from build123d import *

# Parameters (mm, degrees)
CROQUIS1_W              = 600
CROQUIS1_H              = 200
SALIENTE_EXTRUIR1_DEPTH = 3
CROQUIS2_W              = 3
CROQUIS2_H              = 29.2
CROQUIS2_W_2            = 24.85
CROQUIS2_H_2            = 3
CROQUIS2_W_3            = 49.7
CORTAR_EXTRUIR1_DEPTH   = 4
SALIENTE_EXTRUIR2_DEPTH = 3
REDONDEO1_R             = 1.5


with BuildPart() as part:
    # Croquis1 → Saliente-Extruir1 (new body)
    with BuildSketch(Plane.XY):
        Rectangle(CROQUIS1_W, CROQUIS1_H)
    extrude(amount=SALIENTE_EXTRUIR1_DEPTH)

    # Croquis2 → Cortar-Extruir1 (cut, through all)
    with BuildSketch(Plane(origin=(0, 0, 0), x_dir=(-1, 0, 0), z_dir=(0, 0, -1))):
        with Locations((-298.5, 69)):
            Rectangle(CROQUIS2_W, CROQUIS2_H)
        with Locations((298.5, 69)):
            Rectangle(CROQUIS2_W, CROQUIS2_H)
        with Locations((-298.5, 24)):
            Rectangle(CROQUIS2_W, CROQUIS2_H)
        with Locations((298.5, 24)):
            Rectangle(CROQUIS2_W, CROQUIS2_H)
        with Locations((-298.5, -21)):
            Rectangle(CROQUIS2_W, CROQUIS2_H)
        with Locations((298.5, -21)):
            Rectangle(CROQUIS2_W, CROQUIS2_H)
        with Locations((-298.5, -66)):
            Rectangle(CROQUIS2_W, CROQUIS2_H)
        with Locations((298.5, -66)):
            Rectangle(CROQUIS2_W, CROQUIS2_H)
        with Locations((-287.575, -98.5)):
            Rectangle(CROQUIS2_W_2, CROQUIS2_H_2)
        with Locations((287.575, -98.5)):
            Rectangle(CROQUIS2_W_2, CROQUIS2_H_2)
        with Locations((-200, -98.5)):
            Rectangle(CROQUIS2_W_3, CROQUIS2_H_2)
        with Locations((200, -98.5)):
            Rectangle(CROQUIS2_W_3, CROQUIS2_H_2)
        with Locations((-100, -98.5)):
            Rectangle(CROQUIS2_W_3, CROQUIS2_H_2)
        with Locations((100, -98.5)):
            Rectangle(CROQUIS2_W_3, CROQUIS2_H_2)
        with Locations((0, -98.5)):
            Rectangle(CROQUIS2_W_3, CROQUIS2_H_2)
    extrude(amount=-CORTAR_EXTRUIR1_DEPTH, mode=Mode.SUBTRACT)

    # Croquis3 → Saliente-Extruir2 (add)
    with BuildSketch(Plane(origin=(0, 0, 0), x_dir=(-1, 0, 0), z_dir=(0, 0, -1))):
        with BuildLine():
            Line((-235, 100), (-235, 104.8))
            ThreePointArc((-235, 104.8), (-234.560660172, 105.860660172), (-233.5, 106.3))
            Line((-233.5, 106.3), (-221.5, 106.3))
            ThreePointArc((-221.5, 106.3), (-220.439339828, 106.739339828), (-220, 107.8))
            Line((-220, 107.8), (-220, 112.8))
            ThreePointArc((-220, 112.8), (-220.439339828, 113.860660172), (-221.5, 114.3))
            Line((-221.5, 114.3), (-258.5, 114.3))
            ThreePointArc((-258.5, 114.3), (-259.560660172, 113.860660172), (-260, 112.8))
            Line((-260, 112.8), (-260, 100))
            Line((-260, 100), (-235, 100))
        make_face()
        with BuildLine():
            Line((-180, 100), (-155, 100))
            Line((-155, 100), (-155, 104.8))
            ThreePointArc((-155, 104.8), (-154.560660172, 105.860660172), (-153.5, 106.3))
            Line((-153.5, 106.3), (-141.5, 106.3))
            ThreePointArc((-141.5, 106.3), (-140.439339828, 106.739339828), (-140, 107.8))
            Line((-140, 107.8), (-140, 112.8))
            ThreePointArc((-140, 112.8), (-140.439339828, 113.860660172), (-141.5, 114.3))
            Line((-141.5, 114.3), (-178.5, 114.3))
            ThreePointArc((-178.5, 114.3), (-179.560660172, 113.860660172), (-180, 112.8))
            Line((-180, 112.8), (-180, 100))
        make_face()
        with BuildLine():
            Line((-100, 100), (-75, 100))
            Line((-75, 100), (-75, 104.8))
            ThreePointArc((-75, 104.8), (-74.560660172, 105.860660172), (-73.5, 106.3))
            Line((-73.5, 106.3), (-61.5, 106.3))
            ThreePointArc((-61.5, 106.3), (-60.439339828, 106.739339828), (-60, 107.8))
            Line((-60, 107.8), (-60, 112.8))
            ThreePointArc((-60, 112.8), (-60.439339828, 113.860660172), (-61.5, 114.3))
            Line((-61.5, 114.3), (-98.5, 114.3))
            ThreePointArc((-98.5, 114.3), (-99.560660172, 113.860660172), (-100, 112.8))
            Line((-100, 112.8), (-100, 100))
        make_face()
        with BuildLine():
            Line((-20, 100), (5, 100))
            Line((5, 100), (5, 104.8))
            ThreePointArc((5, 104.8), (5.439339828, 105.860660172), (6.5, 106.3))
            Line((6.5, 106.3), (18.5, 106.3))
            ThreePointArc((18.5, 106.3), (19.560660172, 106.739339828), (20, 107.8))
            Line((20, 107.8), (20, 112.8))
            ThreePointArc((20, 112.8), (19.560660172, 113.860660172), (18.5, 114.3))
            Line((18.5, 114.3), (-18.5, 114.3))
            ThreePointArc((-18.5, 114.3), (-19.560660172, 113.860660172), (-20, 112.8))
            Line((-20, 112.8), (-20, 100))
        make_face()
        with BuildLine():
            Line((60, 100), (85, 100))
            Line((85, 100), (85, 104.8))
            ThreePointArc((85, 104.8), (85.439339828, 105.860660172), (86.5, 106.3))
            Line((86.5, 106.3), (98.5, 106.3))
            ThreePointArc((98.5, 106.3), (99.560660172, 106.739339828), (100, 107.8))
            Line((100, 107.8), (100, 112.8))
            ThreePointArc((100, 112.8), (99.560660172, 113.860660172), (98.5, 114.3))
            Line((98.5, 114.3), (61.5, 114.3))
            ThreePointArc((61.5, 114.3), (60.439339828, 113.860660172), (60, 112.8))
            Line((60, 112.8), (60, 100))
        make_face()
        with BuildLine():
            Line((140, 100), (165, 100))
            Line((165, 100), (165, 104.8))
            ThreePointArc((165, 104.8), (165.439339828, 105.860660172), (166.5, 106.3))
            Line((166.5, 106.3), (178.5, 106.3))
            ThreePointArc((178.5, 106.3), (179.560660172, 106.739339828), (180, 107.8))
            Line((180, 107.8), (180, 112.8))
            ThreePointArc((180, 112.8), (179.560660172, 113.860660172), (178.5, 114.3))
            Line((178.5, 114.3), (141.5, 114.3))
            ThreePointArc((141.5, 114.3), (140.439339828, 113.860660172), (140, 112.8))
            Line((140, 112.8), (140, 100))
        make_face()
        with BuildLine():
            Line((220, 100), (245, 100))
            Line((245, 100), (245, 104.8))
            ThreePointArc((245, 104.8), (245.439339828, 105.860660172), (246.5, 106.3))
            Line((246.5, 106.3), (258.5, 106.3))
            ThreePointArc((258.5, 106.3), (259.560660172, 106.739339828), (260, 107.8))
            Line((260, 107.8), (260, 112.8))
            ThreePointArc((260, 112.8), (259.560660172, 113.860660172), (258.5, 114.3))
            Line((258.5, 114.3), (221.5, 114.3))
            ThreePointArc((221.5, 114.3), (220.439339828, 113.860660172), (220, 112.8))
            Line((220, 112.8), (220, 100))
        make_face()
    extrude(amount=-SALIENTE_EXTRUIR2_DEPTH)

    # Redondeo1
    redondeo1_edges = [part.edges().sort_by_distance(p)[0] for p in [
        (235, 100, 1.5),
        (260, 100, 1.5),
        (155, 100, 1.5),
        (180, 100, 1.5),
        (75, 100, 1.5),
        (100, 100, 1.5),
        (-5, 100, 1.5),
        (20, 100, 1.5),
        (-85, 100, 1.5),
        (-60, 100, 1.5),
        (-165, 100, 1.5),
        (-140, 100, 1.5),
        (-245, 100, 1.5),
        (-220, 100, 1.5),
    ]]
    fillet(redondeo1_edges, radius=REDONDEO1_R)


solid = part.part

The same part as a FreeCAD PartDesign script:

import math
import FreeCAD as App
import Part
import Sketcher


def edges_at(feature, points):
    """Names of the edges that pass closest to the given points."""
    edges = feature.Shape.Edges
    near = lambda p: min(range(len(edges)), key=lambda i: edges[i].distToShape(Part.Vertex(*p))[0])
    return sorted({f"Edge{near(p) + 1}" for p in points})

doc = App.newDocument("Part")
body = doc.addObject("PartDesign::Body", "Body")

# Sketch on XY plane
sketch1 = body.newObject("Sketcher::SketchObject", "Sketch")
sketch1.AttachmentSupport = (doc.getObject("XY_Plane"), [""])
sketch1.MapMode = "FlatFace"
sketch1.addGeometry([
    Part.LineSegment(App.Vector(-300, 100, 0), App.Vector(-300, -100, 0)),
    Part.LineSegment(App.Vector(-300, -100, 0), App.Vector(300, -100, 0)),
    Part.LineSegment(App.Vector(300, -100, 0), App.Vector(300, 100, 0)),
    Part.LineSegment(App.Vector(300, 100, 0), App.Vector(-300, 100, 0)),
], False)
sketch1.addConstraint([
    Sketcher.Constraint("Coincident", 0, 2, 1, 1),
    Sketcher.Constraint("Coincident", 1, 2, 2, 1),
    Sketcher.Constraint("Coincident", 2, 2, 3, 1),
    Sketcher.Constraint("Coincident", 3, 2, 0, 1),
    Sketcher.Constraint("Vertical", 0),
    Sketcher.Constraint("Horizontal", 1),
    Sketcher.Constraint("Vertical", 2),
    Sketcher.Constraint("Horizontal", 3),
    Sketcher.Constraint("Symmetric", 0, 2, 2, 2, -1, 1),
    Sketcher.Constraint("DistanceX", 1, 1, 1, 2, 600.0),
    Sketcher.Constraint("DistanceY", 0, 2, 0, 1, 200.0),
])
pad1 = body.newObject("PartDesign::Pad", "Pad")
pad1.Profile = sketch1
pad1.Length = 3

# Sketch on XY plane
sketch2 = body.newObject("Sketcher::SketchObject", "Sketch001")
sketch2.AttachmentSupport = (doc.getObject("XY_Plane"), [""])
sketch2.MapMode = "FlatFace"
sketch2.addGeometry([
    Part.LineSegment(App.Vector(300, 83.6, 0), App.Vector(300, 54.4, 0)),  # 0
    Part.LineSegment(App.Vector(300, 54.4, 0), App.Vector(297, 54.4, 0)),  # 1
    Part.LineSegment(App.Vector(297, 54.4, 0), App.Vector(297, 83.6, 0)),  # 2
    Part.LineSegment(App.Vector(297, 83.6, 0), App.Vector(300, 83.6, 0)),  # 3
    Part.LineSegment(App.Vector(-297, 83.6, 0), App.Vector(-297, 54.4, 0)),  # 4
    Part.LineSegment(App.Vector(-297, 54.4, 0), App.Vector(-300, 54.4, 0)),  # 5
    Part.LineSegment(App.Vector(-300, 54.4, 0), App.Vector(-300, 83.6, 0)),  # 6
    Part.LineSegment(App.Vector(-300, 83.6, 0), App.Vector(-297, 83.6, 0)),  # 7
    Part.LineSegment(App.Vector(300, 38.6, 0), App.Vector(300, 9.4, 0)),  # 8
    Part.LineSegment(App.Vector(300, 9.4, 0), App.Vector(297, 9.4, 0)),  # 9
    Part.LineSegment(App.Vector(297, 9.4, 0), App.Vector(297, 38.6, 0)),  # 10
    Part.LineSegment(App.Vector(297, 38.6, 0), App.Vector(300, 38.6, 0)),  # 11
    Part.LineSegment(App.Vector(-297, 38.6, 0), App.Vector(-297, 9.4, 0)),  # 12
    Part.LineSegment(App.Vector(-297, 9.4, 0), App.Vector(-300, 9.4, 0)),  # 13
    Part.LineSegment(App.Vector(-300, 9.4, 0), App.Vector(-300, 38.6, 0)),  # 14
    Part.LineSegment(App.Vector(-300, 38.6, 0), App.Vector(-297, 38.6, 0)),  # 15
    Part.LineSegment(App.Vector(300, -6.4, 0), App.Vector(300, -35.6, 0)),  # 16
    Part.LineSegment(App.Vector(300, -35.6, 0), App.Vector(297, -35.6, 0)),  # 17
    Part.LineSegment(App.Vector(297, -35.6, 0), App.Vector(297, -6.4, 0)),  # 18
    Part.LineSegment(App.Vector(297, -6.4, 0), App.Vector(300, -6.4, 0)),  # 19
    Part.LineSegment(App.Vector(-297, -6.4, 0), App.Vector(-297, -35.6, 0)),  # 20
    Part.LineSegment(App.Vector(-297, -35.6, 0), App.Vector(-300, -35.6, 0)),  # 21
    Part.LineSegment(App.Vector(-300, -35.6, 0), App.Vector(-300, -6.4, 0)),  # 22
    Part.LineSegment(App.Vector(-300, -6.4, 0), App.Vector(-297, -6.4, 0)),  # 23
    Part.LineSegment(App.Vector(300, -51.4, 0), App.Vector(300, -80.6, 0)),  # 24
    Part.LineSegment(App.Vector(300, -80.6, 0), App.Vector(297, -80.6, 0)),  # 25
    Part.LineSegment(App.Vector(297, -80.6, 0), App.Vector(297, -51.4, 0)),  # 26
    Part.LineSegment(App.Vector(297, -51.4, 0), App.Vector(300, -51.4, 0)),  # 27
    Part.LineSegment(App.Vector(-297, -51.4, 0), App.Vector(-297, -80.6, 0)),  # 28
    Part.LineSegment(App.Vector(-297, -80.6, 0), App.Vector(-300, -80.6, 0)),  # 29
    Part.LineSegment(App.Vector(-300, -80.6, 0), App.Vector(-300, -51.4, 0)),  # 30
    Part.LineSegment(App.Vector(-300, -51.4, 0), App.Vector(-297, -51.4, 0)),  # 31
    Part.LineSegment(App.Vector(300, -97, 0), App.Vector(300, -100, 0)),  # 32
    Part.LineSegment(App.Vector(300, -100, 0), App.Vector(275.1, -100, 0)),  # 33
    Part.LineSegment(App.Vector(275.1, -100, 0), App.Vector(275.1, -97, 0)),  # 34
    Part.LineSegment(App.Vector(275.1, -97, 0), App.Vector(300, -97, 0)),  # 35
    Part.LineSegment(App.Vector(-275.1, -97, 0), App.Vector(-275.1, -100, 0)),  # 36
    Part.LineSegment(App.Vector(-275.1, -100, 0), App.Vector(-300, -100, 0)),  # 37
    Part.LineSegment(App.Vector(-300, -100, 0), App.Vector(-300, -97, 0)),  # 38
    Part.LineSegment(App.Vector(-300, -97, 0), App.Vector(-275.1, -97, 0)),  # 39
    Part.LineSegment(App.Vector(224.8, -97, 0), App.Vector(224.8, -100, 0)),  # 40
    Part.LineSegment(App.Vector(224.8, -100, 0), App.Vector(175.2, -100, 0)),  # 41
    Part.LineSegment(App.Vector(175.2, -100, 0), App.Vector(175.2, -97, 0)),  # 42
    Part.LineSegment(App.Vector(175.2, -97, 0), App.Vector(224.8, -97, 0)),  # 43
    Part.LineSegment(App.Vector(-175.2, -97, 0), App.Vector(-175.2, -100, 0)),  # 44
    Part.LineSegment(App.Vector(-175.2, -100, 0), App.Vector(-224.8, -100, 0)),  # 45
    Part.LineSegment(App.Vector(-224.8, -100, 0), App.Vector(-224.8, -97, 0)),  # 46
    Part.LineSegment(App.Vector(-224.8, -97, 0), App.Vector(-175.2, -97, 0)),  # 47
    Part.LineSegment(App.Vector(124.8, -97, 0), App.Vector(124.8, -100, 0)),  # 48
    Part.LineSegment(App.Vector(124.8, -100, 0), App.Vector(75.2, -100, 0)),  # 49
    Part.LineSegment(App.Vector(75.2, -100, 0), App.Vector(75.2, -97, 0)),  # 50
    Part.LineSegment(App.Vector(75.2, -97, 0), App.Vector(124.8, -97, 0)),  # 51
    Part.LineSegment(App.Vector(-75.2, -97, 0), App.Vector(-75.2, -100, 0)),  # 52
    Part.LineSegment(App.Vector(-75.2, -100, 0), App.Vector(-124.8, -100, 0)),  # 53
    Part.LineSegment(App.Vector(-124.8, -100, 0), App.Vector(-124.8, -97, 0)),  # 54
    Part.LineSegment(App.Vector(-124.8, -97, 0), App.Vector(-75.2, -97, 0)),  # 55
    Part.LineSegment(App.Vector(24.9, -97, 0), App.Vector(24.9, -100, 0)),  # 56
    Part.LineSegment(App.Vector(24.9, -100, 0), App.Vector(-24.9, -100, 0)),  # 57
    Part.LineSegment(App.Vector(-24.9, -100, 0), App.Vector(-24.9, -97, 0)),  # 58
    Part.LineSegment(App.Vector(-24.9, -97, 0), App.Vector(24.9, -97, 0)),  # 59
], False)
sketch2.addConstraint([
    Sketcher.Constraint("Coincident", 0, 2, 1, 1),
    Sketcher.Constraint("Coincident", 1, 2, 2, 1),
    Sketcher.Constraint("Coincident", 2, 2, 3, 1),
    Sketcher.Constraint("Coincident", 3, 2, 0, 1),
    Sketcher.Constraint("Coincident", 4, 2, 5, 1),
    Sketcher.Constraint("Coincident", 5, 2, 6, 1),
    Sketcher.Constraint("Coincident", 6, 2, 7, 1),
    Sketcher.Constraint("Coincident", 7, 2, 4, 1),
    Sketcher.Constraint("Coincident", 8, 2, 9, 1),
    Sketcher.Constraint("Coincident", 9, 2, 10, 1),
    Sketcher.Constraint("Coincident", 10, 2, 11, 1),
    Sketcher.Constraint("Coincident", 11, 2, 8, 1),
    Sketcher.Constraint("Coincident", 12, 2, 13, 1),
    Sketcher.Constraint("Coincident", 13, 2, 14, 1),
    Sketcher.Constraint("Coincident", 14, 2, 15, 1),
    Sketcher.Constraint("Coincident", 15, 2, 12, 1),
    Sketcher.Constraint("Coincident", 16, 2, 17, 1),
    Sketcher.Constraint("Coincident", 17, 2, 18, 1),
    Sketcher.Constraint("Coincident", 18, 2, 19, 1),
    Sketcher.Constraint("Coincident", 19, 2, 16, 1),
    Sketcher.Constraint("Coincident", 20, 2, 21, 1),
    Sketcher.Constraint("Coincident", 21, 2, 22, 1),
    Sketcher.Constraint("Coincident", 22, 2, 23, 1),
    Sketcher.Constraint("Coincident", 23, 2, 20, 1),
    Sketcher.Constraint("Coincident", 24, 2, 25, 1),
    Sketcher.Constraint("Coincident", 25, 2, 26, 1),
    Sketcher.Constraint("Coincident", 26, 2, 27, 1),
    Sketcher.Constraint("Coincident", 27, 2, 24, 1),
    Sketcher.Constraint("Coincident", 28, 2, 29, 1),
    Sketcher.Constraint("Coincident", 29, 2, 30, 1),
    Sketcher.Constraint("Coincident", 30, 2, 31, 1),
    Sketcher.Constraint("Coincident", 31, 2, 28, 1),
    Sketcher.Constraint("Coincident", 32, 2, 33, 1),
    Sketcher.Constraint("Coincident", 33, 2, 34, 1),
    Sketcher.Constraint("Coincident", 34, 2, 35, 1),
    Sketcher.Constraint("Coincident", 35, 2, 32, 1),
    Sketcher.Constraint("Coincident", 36, 2, 37, 1),
    Sketcher.Constraint("Coincident", 37, 2, 38, 1),
    Sketcher.Constraint("Coincident", 38, 2, 39, 1),
    Sketcher.Constraint("Coincident", 39, 2, 36, 1),
    Sketcher.Constraint("Coincident", 40, 2, 41, 1),
    Sketcher.Constraint("Coincident", 41, 2, 42, 1),
    Sketcher.Constraint("Coincident", 42, 2, 43, 1),
    Sketcher.Constraint("Coincident", 43, 2, 40, 1),
    Sketcher.Constraint("Coincident", 44, 2, 45, 1),
    Sketcher.Constraint("Coincident", 45, 2, 46, 1),
    Sketcher.Constraint("Coincident", 46, 2, 47, 1),
    Sketcher.Constraint("Coincident", 47, 2, 44, 1),
    Sketcher.Constraint("Coincident", 48, 2, 49, 1),
    Sketcher.Constraint("Coincident", 49, 2, 50, 1),
    Sketcher.Constraint("Coincident", 50, 2, 51, 1),
    Sketcher.Constraint("Coincident", 51, 2, 48, 1),
    Sketcher.Constraint("Coincident", 52, 2, 53, 1),
    Sketcher.Constraint("Coincident", 53, 2, 54, 1),
    Sketcher.Constraint("Coincident", 54, 2, 55, 1),
    Sketcher.Constraint("Coincident", 55, 2, 52, 1),
    Sketcher.Constraint("Coincident", 56, 2, 57, 1),
    Sketcher.Constraint("Coincident", 57, 2, 58, 1),
    Sketcher.Constraint("Coincident", 58, 2, 59, 1),
    Sketcher.Constraint("Coincident", 59, 2, 56, 1),
    Sketcher.Constraint("Vertical", 0),
    Sketcher.Constraint("Horizontal", 1),
    Sketcher.Constraint("Vertical", 2),
    Sketcher.Constraint("Horizontal", 3),
    Sketcher.Constraint("Vertical", 4),
    Sketcher.Constraint("Horizontal", 5),
    Sketcher.Constraint("Vertical", 6),
    Sketcher.Constraint("Horizontal", 7),
    Sketcher.Constraint("Vertical", 8),
    Sketcher.Constraint("Horizontal", 9),
    Sketcher.Constraint("Vertical", 10),
    Sketcher.Constraint("Horizontal", 11),
    Sketcher.Constraint("Vertical", 12),
    Sketcher.Constraint("Horizontal", 13),
    Sketcher.Constraint("Vertical", 14),
    Sketcher.Constraint("Horizontal", 15),
    Sketcher.Constraint("Vertical", 16),
    Sketcher.Constraint("Horizontal", 17),
    Sketcher.Constraint("Vertical", 18),
    Sketcher.Constraint("Horizontal", 19),
    Sketcher.Constraint("Vertical", 20),
    Sketcher.Constraint("Horizontal", 21),
    Sketcher.Constraint("Vertical", 22),
    Sketcher.Constraint("Horizontal", 23),
    Sketcher.Constraint("Vertical", 24),
    Sketcher.Constraint("Horizontal", 25),
    Sketcher.Constraint("Vertical", 26),
    Sketcher.Constraint("Horizontal", 27),
    Sketcher.Constraint("Vertical", 28),
    Sketcher.Constraint("Horizontal", 29),
    Sketcher.Constraint("Vertical", 30),
    Sketcher.Constraint("Horizontal", 31),
    Sketcher.Constraint("Vertical", 32),
    Sketcher.Constraint("Horizontal", 33),
    Sketcher.Constraint("Vertical", 34),
    Sketcher.Constraint("Horizontal", 35),
    Sketcher.Constraint("Vertical", 36),
    Sketcher.Constraint("Horizontal", 37),
    Sketcher.Constraint("Vertical", 38),
    Sketcher.Constraint("Horizontal", 39),
    Sketcher.Constraint("Vertical", 40),
    Sketcher.Constraint("Horizontal", 41),
    Sketcher.Constraint("Vertical", 42),
    Sketcher.Constraint("Horizontal", 43),
    Sketcher.Constraint("Vertical", 44),
    Sketcher.Constraint("Horizontal", 45),
    Sketcher.Constraint("Vertical", 46),
    Sketcher.Constraint("Horizontal", 47),
    Sketcher.Constraint("Vertical", 48),
    Sketcher.Constraint("Horizontal", 49),
    Sketcher.Constraint("Vertical", 50),
    Sketcher.Constraint("Horizontal", 51),
    Sketcher.Constraint("Vertical", 52),
    Sketcher.Constraint("Horizontal", 53),
    Sketcher.Constraint("Vertical", 54),
    Sketcher.Constraint("Horizontal", 55),
    Sketcher.Constraint("Vertical", 56),
    Sketcher.Constraint("Horizontal", 57),
    Sketcher.Constraint("Vertical", 58),
    Sketcher.Constraint("Horizontal", 59),
    Sketcher.Constraint("Symmetric", 1, 2, 4, 2, -2),
    Sketcher.Constraint("Symmetric", 3, 2, 6, 2, -2),
    Sketcher.Constraint("Symmetric", 9, 2, 12, 2, -2),
    Sketcher.Constraint("Symmetric", 11, 2, 14, 2, -2),
    Sketcher.Constraint("Symmetric", 17, 2, 20, 2, -2),
    Sketcher.Constraint("Symmetric", 19, 2, 22, 2, -2),
    Sketcher.Constraint("Symmetric", 25, 2, 28, 2, -2),
    Sketcher.Constraint("Symmetric", 27, 2, 30, 2, -2),
    Sketcher.Constraint("Symmetric", 33, 2, 36, 2, -2),
    Sketcher.Constraint("Symmetric", 35, 2, 38, 2, -2),
    Sketcher.Constraint("Symmetric", 41, 2, 44, 2, -2),
    Sketcher.Constraint("Symmetric", 43, 2, 46, 2, -2),
    Sketcher.Constraint("Symmetric", 49, 2, 52, 2, -2),
    Sketcher.Constraint("Symmetric", 51, 2, 54, 2, -2),
    Sketcher.Constraint("Horizontal", 37, 2, 40, 2),
    Sketcher.Constraint("Horizontal", 39, 2, 42, 2),
    Sketcher.Constraint("Horizontal", 45, 2, 48, 2),
    Sketcher.Constraint("Horizontal", 47, 2, 50, 2),
    Sketcher.Constraint("Horizontal", 53, 2, 56, 2),
    Sketcher.Constraint("Horizontal", 55, 2, 58, 2),
    Sketcher.Constraint("Vertical", 3, 2, 8, 2),
    Sketcher.Constraint("Vertical", 2, 2, 9, 2),
    Sketcher.Constraint("Vertical", 11, 2, 16, 2),
    Sketcher.Constraint("Vertical", 10, 2, 17, 2),
    Sketcher.Constraint("Vertical", 19, 2, 24, 2),
    Sketcher.Constraint("Vertical", 18, 2, 25, 2),
    Sketcher.Constraint("Vertical", 27, 2, 32, 2),
    Sketcher.Constraint("Equal", 47, 49),
    Sketcher.Constraint("Equal", 55, 57),
    Sketcher.Constraint("Equal", 6, 8),
    Sketcher.Constraint("Equal", 14, 16),
    Sketcher.Constraint("Equal", 22, 24),
    Sketcher.Constraint("Equal", 31, 32),
    Sketcher.Constraint("DistanceX", 1, 2, 1, 1, 3.0),
    Sketcher.Constraint("DistanceX", 41, 2, 41, 1, 49.7),
    Sketcher.Constraint("DistanceY", 0, 2, 0, 1, 29.2),
    Sketcher.Constraint("DistanceX", -1, 1, 0, 2, 300.0),
    Sketcher.Constraint("DistanceY", 32, 2, -1, 1, 100.0),
    Sketcher.Constraint("DistanceY", 8, 2, 0, 2, 45.0),
    Sketcher.Constraint("DistanceY", 16, 2, 8, 2, 45.0),
    Sketcher.Constraint("DistanceY", 24, 2, 16, 2, 45.0),
    Sketcher.Constraint("DistanceX", 41, 2, 33, 2, 100.0),
    Sketcher.Constraint("DistanceX", 48, 2, 40, 2, 100.0),
    Sketcher.Constraint("DistanceX", 56, 2, 48, 2, 100.0),
    Sketcher.Constraint("DistanceX", 52, 2, 56, 2, 100.0),
    Sketcher.Constraint("DistanceY", -1, 1, 0, 2, 54.4),
])
pocket1 = body.newObject("PartDesign::Pocket", "Pocket")
pocket1.Profile = sketch2
pocket1.Type = "ThroughAll"
pocket1.Reversed = True

# Sketch on XY plane
sketch3 = body.newObject("Sketcher::SketchObject", "Sketch002")
sketch3.AttachmentSupport = (doc.getObject("XY_Plane"), [""])
sketch3.MapMode = "FlatFace"
sketch3.addGeometry([
    Part.LineSegment(App.Vector(235, 100, 0), App.Vector(235, 104.8, 0)),  # 0
    Part.ArcOfCircle(Part.Circle(App.Vector(233.5, 104.8, 0), App.Vector(0, 0, 1), 1.5), math.radians(0), math.radians(90)),  # 1
    Part.LineSegment(App.Vector(233.5, 106.3, 0), App.Vector(221.5, 106.3, 0)),  # 2
    Part.ArcOfCircle(Part.Circle(App.Vector(221.5, 107.8, 0), App.Vector(0, 0, 1), 1.5), math.radians(180), math.radians(270)),  # 3
    Part.LineSegment(App.Vector(220, 107.8, 0), App.Vector(220, 112.8, 0)),  # 4
    Part.ArcOfCircle(Part.Circle(App.Vector(221.5, 112.8, 0), App.Vector(0, 0, 1), 1.5), math.radians(90), math.radians(180)),  # 5
    Part.LineSegment(App.Vector(221.5, 114.3, 0), App.Vector(258.5, 114.3, 0)),  # 6
    Part.ArcOfCircle(Part.Circle(App.Vector(258.5, 112.8, 0), App.Vector(0, 0, 1), 1.5), math.radians(0), math.radians(90)),  # 7
    Part.LineSegment(App.Vector(260, 112.8, 0), App.Vector(260, 100, 0)),  # 8
    Part.LineSegment(App.Vector(260, 100, 0), App.Vector(235, 100, 0)),  # 9
    Part.LineSegment(App.Vector(180, 100, 0), App.Vector(155, 100, 0)),  # 10
    Part.LineSegment(App.Vector(155, 100, 0), App.Vector(155, 104.8, 0)),  # 11
    Part.ArcOfCircle(Part.Circle(App.Vector(153.5, 104.8, 0), App.Vector(0, 0, 1), 1.5), math.radians(0), math.radians(90)),  # 12
    Part.LineSegment(App.Vector(153.5, 106.3, 0), App.Vector(141.5, 106.3, 0)),  # 13
    Part.ArcOfCircle(Part.Circle(App.Vector(141.5, 107.8, 0), App.Vector(0, 0, 1), 1.5), math.radians(180), math.radians(270)),  # 14
    Part.LineSegment(App.Vector(140, 107.8, 0), App.Vector(140, 112.8, 0)),  # 15
    Part.ArcOfCircle(Part.Circle(App.Vector(141.5, 112.8, 0), App.Vector(0, 0, 1), 1.5), math.radians(90), math.radians(180)),  # 16
    Part.LineSegment(App.Vector(141.5, 114.3, 0), App.Vector(178.5, 114.3, 0)),  # 17
    Part.ArcOfCircle(Part.Circle(App.Vector(178.5, 112.8, 0), App.Vector(0, 0, 1), 1.5), math.radians(0), math.radians(90)),  # 18
    Part.LineSegment(App.Vector(180, 112.8, 0), App.Vector(180, 100, 0)),  # 19
    Part.LineSegment(App.Vector(100, 100, 0), App.Vector(75, 100, 0)),  # 20
    Part.LineSegment(App.Vector(75, 100, 0), App.Vector(75, 104.8, 0)),  # 21
    Part.ArcOfCircle(Part.Circle(App.Vector(73.5, 104.8, 0), App.Vector(0, 0, 1), 1.5), math.radians(0), math.radians(90)),  # 22
    Part.LineSegment(App.Vector(73.5, 106.3, 0), App.Vector(61.5, 106.3, 0)),  # 23
    Part.ArcOfCircle(Part.Circle(App.Vector(61.5, 107.8, 0), App.Vector(0, 0, 1), 1.5), math.radians(180), math.radians(270)),  # 24
    Part.LineSegment(App.Vector(60, 107.8, 0), App.Vector(60, 112.8, 0)),  # 25
    Part.ArcOfCircle(Part.Circle(App.Vector(61.5, 112.8, 0), App.Vector(0, 0, 1), 1.5), math.radians(90), math.radians(180)),  # 26
    Part.LineSegment(App.Vector(61.5, 114.3, 0), App.Vector(98.5, 114.3, 0)),  # 27
    Part.ArcOfCircle(Part.Circle(App.Vector(98.5, 112.8, 0), App.Vector(0, 0, 1), 1.5), math.radians(0), math.radians(90)),  # 28
    Part.LineSegment(App.Vector(100, 112.8, 0), App.Vector(100, 100, 0)),  # 29
    Part.LineSegment(App.Vector(20, 100, 0), App.Vector(-5, 100, 0)),  # 30
    Part.LineSegment(App.Vector(-5, 100, 0), App.Vector(-5, 104.8, 0)),  # 31
    Part.ArcOfCircle(Part.Circle(App.Vector(-6.5, 104.8, 0), App.Vector(0, 0, 1), 1.5), math.radians(0), math.radians(90)),  # 32
    Part.LineSegment(App.Vector(-6.5, 106.3, 0), App.Vector(-18.5, 106.3, 0)),  # 33
    Part.ArcOfCircle(Part.Circle(App.Vector(-18.5, 107.8, 0), App.Vector(0, 0, 1), 1.5), math.radians(180), math.radians(270)),  # 34
    Part.LineSegment(App.Vector(-20, 107.8, 0), App.Vector(-20, 112.8, 0)),  # 35
    Part.ArcOfCircle(Part.Circle(App.Vector(-18.5, 112.8, 0), App.Vector(0, 0, 1), 1.5), math.radians(90), math.radians(180)),  # 36
    Part.LineSegment(App.Vector(-18.5, 114.3, 0), App.Vector(18.5, 114.3, 0)),  # 37
    Part.ArcOfCircle(Part.Circle(App.Vector(18.5, 112.8, 0), App.Vector(0, 0, 1), 1.5), math.radians(0), math.radians(90)),  # 38
    Part.LineSegment(App.Vector(20, 112.8, 0), App.Vector(20, 100, 0)),  # 39
    Part.LineSegment(App.Vector(-60, 100, 0), App.Vector(-85, 100, 0)),  # 40
    Part.LineSegment(App.Vector(-85, 100, 0), App.Vector(-85, 104.8, 0)),  # 41
    Part.ArcOfCircle(Part.Circle(App.Vector(-86.5, 104.8, 0), App.Vector(0, 0, 1), 1.5), math.radians(0), math.radians(90)),  # 42
    Part.LineSegment(App.Vector(-86.5, 106.3, 0), App.Vector(-98.5, 106.3, 0)),  # 43
    Part.ArcOfCircle(Part.Circle(App.Vector(-98.5, 107.8, 0), App.Vector(0, 0, 1), 1.5), math.radians(180), math.radians(270)),  # 44
    Part.LineSegment(App.Vector(-100, 107.8, 0), App.Vector(-100, 112.8, 0)),  # 45
    Part.ArcOfCircle(Part.Circle(App.Vector(-98.5, 112.8, 0), App.Vector(0, 0, 1), 1.5), math.radians(90), math.radians(180)),  # 46
    Part.LineSegment(App.Vector(-98.5, 114.3, 0), App.Vector(-61.5, 114.3, 0)),  # 47
    Part.ArcOfCircle(Part.Circle(App.Vector(-61.5, 112.8, 0), App.Vector(0, 0, 1), 1.5), math.radians(0), math.radians(90)),  # 48
    Part.LineSegment(App.Vector(-60, 112.8, 0), App.Vector(-60, 100, 0)),  # 49
    Part.LineSegment(App.Vector(-140, 100, 0), App.Vector(-165, 100, 0)),  # 50
    Part.LineSegment(App.Vector(-165, 100, 0), App.Vector(-165, 104.8, 0)),  # 51
    Part.ArcOfCircle(Part.Circle(App.Vector(-166.5, 104.8, 0), App.Vector(0, 0, 1), 1.5), math.radians(0), math.radians(90)),  # 52
    Part.LineSegment(App.Vector(-166.5, 106.3, 0), App.Vector(-178.5, 106.3, 0)),  # 53
    Part.ArcOfCircle(Part.Circle(App.Vector(-178.5, 107.8, 0), App.Vector(0, 0, 1), 1.5), math.radians(180), math.radians(270)),  # 54
    Part.LineSegment(App.Vector(-180, 107.8, 0), App.Vector(-180, 112.8, 0)),  # 55
    Part.ArcOfCircle(Part.Circle(App.Vector(-178.5, 112.8, 0), App.Vector(0, 0, 1), 1.5), math.radians(90), math.radians(180)),  # 56
    Part.LineSegment(App.Vector(-178.5, 114.3, 0), App.Vector(-141.5, 114.3, 0)),  # 57
    Part.ArcOfCircle(Part.Circle(App.Vector(-141.5, 112.8, 0), App.Vector(0, 0, 1), 1.5), math.radians(0), math.radians(90)),  # 58
    Part.LineSegment(App.Vector(-140, 112.8, 0), App.Vector(-140, 100, 0)),  # 59
    Part.LineSegment(App.Vector(-220, 100, 0), App.Vector(-245, 100, 0)),  # 60
    Part.LineSegment(App.Vector(-245, 100, 0), App.Vector(-245, 104.8, 0)),  # 61
    Part.ArcOfCircle(Part.Circle(App.Vector(-246.5, 104.8, 0), App.Vector(0, 0, 1), 1.5), math.radians(0), math.radians(90)),  # 62
    Part.LineSegment(App.Vector(-246.5, 106.3, 0), App.Vector(-258.5, 106.3, 0)),  # 63
    Part.ArcOfCircle(Part.Circle(App.Vector(-258.5, 107.8, 0), App.Vector(0, 0, 1), 1.5), math.radians(180), math.radians(270)),  # 64
    Part.LineSegment(App.Vector(-260, 107.8, 0), App.Vector(-260, 112.8, 0)),  # 65
    Part.ArcOfCircle(Part.Circle(App.Vector(-258.5, 112.8, 0), App.Vector(0, 0, 1), 1.5), math.radians(90), math.radians(180)),  # 66
    Part.LineSegment(App.Vector(-258.5, 114.3, 0), App.Vector(-221.5, 114.3, 0)),  # 67
    Part.ArcOfCircle(Part.Circle(App.Vector(-221.5, 112.8, 0), App.Vector(0, 0, 1), 1.5), math.radians(0), math.radians(90)),  # 68
    Part.LineSegment(App.Vector(-220, 112.8, 0), App.Vector(-220, 100, 0)),  # 69
], False)
sketch3.addConstraint([
    Sketcher.Constraint("Tangent", 0, 2, 1, 1),
    Sketcher.Constraint("Tangent", 1, 2, 2, 1),
    Sketcher.Constraint("Tangent", 2, 2, 3, 2),
    Sketcher.Constraint("Tangent", 3, 1, 4, 1),
    Sketcher.Constraint("Tangent", 4, 2, 5, 2),
    Sketcher.Constraint("Tangent", 5, 1, 6, 1),
    Sketcher.Constraint("Tangent", 6, 2, 7, 2),
    Sketcher.Constraint("Tangent", 7, 1, 8, 1),
    Sketcher.Constraint("Coincident", 8, 2, 9, 1),
    Sketcher.Constraint("Coincident", 9, 2, 0, 1),
    Sketcher.Constraint("Coincident", 10, 2, 11, 1),
    Sketcher.Constraint("Tangent", 11, 2, 12, 1),
    Sketcher.Constraint("Tangent", 12, 2, 13, 1),
    Sketcher.Constraint("Tangent", 13, 2, 14, 2),
    Sketcher.Constraint("Tangent", 14, 1, 15, 1),
    Sketcher.Constraint("Tangent", 15, 2, 16, 2),
    Sketcher.Constraint("Tangent", 16, 1, 17, 1),
    Sketcher.Constraint("Tangent", 17, 2, 18, 2),
    Sketcher.Constraint("Tangent", 18, 1, 19, 1),
    Sketcher.Constraint("Coincident", 19, 2, 10, 1),
    Sketcher.Constraint("Coincident", 20, 2, 21, 1),
    Sketcher.Constraint("Tangent", 21, 2, 22, 1),
    Sketcher.Constraint("Tangent", 22, 2, 23, 1),
    Sketcher.Constraint("Tangent", 23, 2, 24, 2),
    Sketcher.Constraint("Tangent", 24, 1, 25, 1),
    Sketcher.Constraint("Tangent", 25, 2, 26, 2),
    Sketcher.Constraint("Tangent", 26, 1, 27, 1),
    Sketcher.Constraint("Tangent", 27, 2, 28, 2),
    Sketcher.Constraint("Tangent", 28, 1, 29, 1),
    Sketcher.Constraint("Coincident", 29, 2, 20, 1),
    Sketcher.Constraint("Coincident", 30, 2, 31, 1),
    Sketcher.Constraint("Tangent", 31, 2, 32, 1),
    Sketcher.Constraint("Tangent", 32, 2, 33, 1),
    Sketcher.Constraint("Tangent", 33, 2, 34, 2),
    Sketcher.Constraint("Tangent", 34, 1, 35, 1),
    Sketcher.Constraint("Tangent", 35, 2, 36, 2),
    Sketcher.Constraint("Tangent", 36, 1, 37, 1),
    Sketcher.Constraint("Tangent", 37, 2, 38, 2),
    Sketcher.Constraint("Tangent", 38, 1, 39, 1),
    Sketcher.Constraint("Coincident", 39, 2, 30, 1),
    Sketcher.Constraint("Coincident", 40, 2, 41, 1),
    Sketcher.Constraint("Tangent", 41, 2, 42, 1),
    Sketcher.Constraint("Tangent", 42, 2, 43, 1),
    Sketcher.Constraint("Tangent", 43, 2, 44, 2),
    Sketcher.Constraint("Tangent", 44, 1, 45, 1),
    Sketcher.Constraint("Tangent", 45, 2, 46, 2),
    Sketcher.Constraint("Tangent", 46, 1, 47, 1),
    Sketcher.Constraint("Tangent", 47, 2, 48, 2),
    Sketcher.Constraint("Tangent", 48, 1, 49, 1),
    Sketcher.Constraint("Coincident", 49, 2, 40, 1),
    Sketcher.Constraint("Coincident", 50, 2, 51, 1),
    Sketcher.Constraint("Tangent", 51, 2, 52, 1),
    Sketcher.Constraint("Tangent", 52, 2, 53, 1),
    Sketcher.Constraint("Tangent", 53, 2, 54, 2),
    Sketcher.Constraint("Tangent", 54, 1, 55, 1),
    Sketcher.Constraint("Tangent", 55, 2, 56, 2),
    Sketcher.Constraint("Tangent", 56, 1, 57, 1),
    Sketcher.Constraint("Tangent", 57, 2, 58, 2),
    Sketcher.Constraint("Tangent", 58, 1, 59, 1),
    Sketcher.Constraint("Coincident", 59, 2, 50, 1),
    Sketcher.Constraint("Coincident", 60, 2, 61, 1),
    Sketcher.Constraint("Tangent", 61, 2, 62, 1),
    Sketcher.Constraint("Tangent", 62, 2, 63, 1),
    Sketcher.Constraint("Tangent", 63, 2, 64, 2),
    Sketcher.Constraint("Tangent", 64, 1, 65, 1),
    Sketcher.Constraint("Tangent", 65, 2, 66, 2),
    Sketcher.Constraint("Tangent", 66, 1, 67, 1),
    Sketcher.Constraint("Tangent", 67, 2, 68, 2),
    Sketcher.Constraint("Tangent", 68, 1, 69, 1),
    Sketcher.Constraint("Coincident", 69, 2, 60, 1),
    Sketcher.Constraint("Vertical", 0),
    Sketcher.Constraint("Horizontal", 2),
    Sketcher.Constraint("Vertical", 4),
    Sketcher.Constraint("Horizontal", 6),
    Sketcher.Constraint("Vertical", 8),
    Sketcher.Constraint("Horizontal", 9),
    Sketcher.Constraint("Horizontal", 10),
    Sketcher.Constraint("Vertical", 11),
    Sketcher.Constraint("Horizontal", 13),
    Sketcher.Constraint("Vertical", 15),
    Sketcher.Constraint("Horizontal", 17),
    Sketcher.Constraint("Vertical", 19),
    Sketcher.Constraint("Horizontal", 20),
    Sketcher.Constraint("Vertical", 21),
    Sketcher.Constraint("Horizontal", 23),
    Sketcher.Constraint("Vertical", 25),
    Sketcher.Constraint("Horizontal", 27),
    Sketcher.Constraint("Vertical", 29),
    Sketcher.Constraint("Horizontal", 30),
    Sketcher.Constraint("Vertical", 31),
    Sketcher.Constraint("Horizontal", 33),
    Sketcher.Constraint("Vertical", 35),
    Sketcher.Constraint("Horizontal", 37),
    Sketcher.Constraint("Vertical", 39),
    Sketcher.Constraint("Horizontal", 40),
    Sketcher.Constraint("Vertical", 41),
    Sketcher.Constraint("Horizontal", 43),
    Sketcher.Constraint("Vertical", 45),
    Sketcher.Constraint("Horizontal", 47),
    Sketcher.Constraint("Vertical", 49),
    Sketcher.Constraint("Horizontal", 50),
    Sketcher.Constraint("Vertical", 51),
    Sketcher.Constraint("Horizontal", 53),
    Sketcher.Constraint("Vertical", 55),
    Sketcher.Constraint("Horizontal", 57),
    Sketcher.Constraint("Vertical", 59),
    Sketcher.Constraint("Horizontal", 60),
    Sketcher.Constraint("Vertical", 61),
    Sketcher.Constraint("Horizontal", 63),
    Sketcher.Constraint("Vertical", 65),
    Sketcher.Constraint("Horizontal", 67),
    Sketcher.Constraint("Vertical", 69),
    Sketcher.Constraint("Equal", 1, 3),
    Sketcher.Constraint("Equal", 3, 5),
    Sketcher.Constraint("Equal", 5, 7),
    Sketcher.Constraint("Equal", 7, 12),
    Sketcher.Constraint("Equal", 12, 14),
    Sketcher.Constraint("Equal", 14, 16),
    Sketcher.Constraint("Equal", 16, 18),
    Sketcher.Constraint("Equal", 18, 22),
    Sketcher.Constraint("Equal", 22, 24),
    Sketcher.Constraint("Equal", 24, 26),
    Sketcher.Constraint("Equal", 26, 28),
    Sketcher.Constraint("Equal", 28, 32),
    Sketcher.Constraint("Equal", 32, 34),
    Sketcher.Constraint("Equal", 34, 36),
    Sketcher.Constraint("Equal", 36, 38),
    Sketcher.Constraint("Equal", 38, 42),
    Sketcher.Constraint("Equal", 42, 44),
    Sketcher.Constraint("Equal", 44, 46),
    Sketcher.Constraint("Equal", 46, 48),
    Sketcher.Constraint("Equal", 48, 52),
    Sketcher.Constraint("Equal", 52, 54),
    Sketcher.Constraint("Equal", 54, 56),
    Sketcher.Constraint("Equal", 56, 58),
    Sketcher.Constraint("Equal", 58, 62),
    Sketcher.Constraint("Equal", 62, 64),
    Sketcher.Constraint("Equal", 64, 66),
    Sketcher.Constraint("Equal", 66, 68),
    Sketcher.Constraint("Symmetric", 28, 3, 46, 3, -2),
    Sketcher.Constraint("Symmetric", 18, 3, 56, 3, -2),
    Sketcher.Constraint("Symmetric", 7, 3, 66, 3, -2),
    Sketcher.Constraint("Horizontal", 1, 3, 12, 3),
    Sketcher.Constraint("Horizontal", 7, 3, 16, 3),
    Sketcher.Constraint("Horizontal", 12, 3, 22, 3),
    Sketcher.Constraint("Horizontal", 18, 3, 26, 3),
    Sketcher.Constraint("Horizontal", 22, 3, 32, 3),
    Sketcher.Constraint("Horizontal", 28, 3, 36, 3),
    Sketcher.Constraint("Horizontal", 32, 3, 42, 3),
    Sketcher.Constraint("Horizontal", 42, 3, 52, 3),
    Sketcher.Constraint("Horizontal", 52, 3, 62, 3),
    Sketcher.Constraint("Horizontal", 9, 2, 10, 2),
    Sketcher.Constraint("Horizontal", 19, 2, 20, 2),
    Sketcher.Constraint("Horizontal", 29, 2, 30, 2),
    Sketcher.Constraint("Horizontal", 39, 2, 40, 2),
    Sketcher.Constraint("Horizontal", 49, 2, 50, 2),
    Sketcher.Constraint("Horizontal", 59, 2, 60, 2),
    Sketcher.Constraint("Equal", 9, 10),
    Sketcher.Constraint("Equal", 2, 13),
    Sketcher.Constraint("Equal", 10, 20),
    Sketcher.Constraint("Equal", 13, 23),
    Sketcher.Constraint("Equal", 20, 30),
    Sketcher.Constraint("Equal", 23, 33),
    Sketcher.Constraint("Equal", 30, 40),
    Sketcher.Constraint("Equal", 33, 43),
    Sketcher.Constraint("Equal", 40, 50),
    Sketcher.Constraint("Equal", 43, 53),
    Sketcher.Constraint("Equal", 50, 60),
    Sketcher.Constraint("Equal", 53, 63),
    Sketcher.Constraint("Radius", 1, 1.5),
    Sketcher.Constraint("DistanceX", 2, 2, 2, 1, 12.0),
    Sketcher.Constraint("DistanceX", 6, 1, 6, 2, 37.0),
    Sketcher.Constraint("DistanceY", 4, 1, 4, 2, 5.0),
    Sketcher.Constraint("DistanceY", 0, 1, 0, 2, 4.8),
    Sketcher.Constraint("DistanceX", -1, 1, 0, 2, 235.0),
    Sketcher.Constraint("DistanceY", -1, 1, 8, 2, 100.0),
    Sketcher.Constraint("DistanceX", -1, 1, 10, 2, 155.0),
    Sketcher.Constraint("DistanceX", -1, 1, 20, 2, 75.0),
    Sketcher.Constraint("DistanceX", 30, 2, -1, 1, 5.0),
])
pad2 = body.newObject("PartDesign::Pad", "Pad001")
pad2.Profile = sketch3
pad2.Length = 3
doc.recompute()

fillet = body.newObject("PartDesign::Fillet", "Fillet")
fillet.Base = (pad2, edges_at(pad2, [
    (235, 100, 1.5),
    (260, 100, 1.5),
    (155, 100, 1.5),
    (180, 100, 1.5),
    (75, 100, 1.5),
    (100, 100, 1.5),
    (-5, 100, 1.5),
    (20, 100, 1.5),
    (-85, 100, 1.5),
    (-60, 100, 1.5),
    (-165, 100, 1.5),
    (-140, 100, 1.5),
    (-245, 100, 1.5),
    (-220, 100, 1.5),
]))
fillet.Radius = 1.5

doc.recompute()
